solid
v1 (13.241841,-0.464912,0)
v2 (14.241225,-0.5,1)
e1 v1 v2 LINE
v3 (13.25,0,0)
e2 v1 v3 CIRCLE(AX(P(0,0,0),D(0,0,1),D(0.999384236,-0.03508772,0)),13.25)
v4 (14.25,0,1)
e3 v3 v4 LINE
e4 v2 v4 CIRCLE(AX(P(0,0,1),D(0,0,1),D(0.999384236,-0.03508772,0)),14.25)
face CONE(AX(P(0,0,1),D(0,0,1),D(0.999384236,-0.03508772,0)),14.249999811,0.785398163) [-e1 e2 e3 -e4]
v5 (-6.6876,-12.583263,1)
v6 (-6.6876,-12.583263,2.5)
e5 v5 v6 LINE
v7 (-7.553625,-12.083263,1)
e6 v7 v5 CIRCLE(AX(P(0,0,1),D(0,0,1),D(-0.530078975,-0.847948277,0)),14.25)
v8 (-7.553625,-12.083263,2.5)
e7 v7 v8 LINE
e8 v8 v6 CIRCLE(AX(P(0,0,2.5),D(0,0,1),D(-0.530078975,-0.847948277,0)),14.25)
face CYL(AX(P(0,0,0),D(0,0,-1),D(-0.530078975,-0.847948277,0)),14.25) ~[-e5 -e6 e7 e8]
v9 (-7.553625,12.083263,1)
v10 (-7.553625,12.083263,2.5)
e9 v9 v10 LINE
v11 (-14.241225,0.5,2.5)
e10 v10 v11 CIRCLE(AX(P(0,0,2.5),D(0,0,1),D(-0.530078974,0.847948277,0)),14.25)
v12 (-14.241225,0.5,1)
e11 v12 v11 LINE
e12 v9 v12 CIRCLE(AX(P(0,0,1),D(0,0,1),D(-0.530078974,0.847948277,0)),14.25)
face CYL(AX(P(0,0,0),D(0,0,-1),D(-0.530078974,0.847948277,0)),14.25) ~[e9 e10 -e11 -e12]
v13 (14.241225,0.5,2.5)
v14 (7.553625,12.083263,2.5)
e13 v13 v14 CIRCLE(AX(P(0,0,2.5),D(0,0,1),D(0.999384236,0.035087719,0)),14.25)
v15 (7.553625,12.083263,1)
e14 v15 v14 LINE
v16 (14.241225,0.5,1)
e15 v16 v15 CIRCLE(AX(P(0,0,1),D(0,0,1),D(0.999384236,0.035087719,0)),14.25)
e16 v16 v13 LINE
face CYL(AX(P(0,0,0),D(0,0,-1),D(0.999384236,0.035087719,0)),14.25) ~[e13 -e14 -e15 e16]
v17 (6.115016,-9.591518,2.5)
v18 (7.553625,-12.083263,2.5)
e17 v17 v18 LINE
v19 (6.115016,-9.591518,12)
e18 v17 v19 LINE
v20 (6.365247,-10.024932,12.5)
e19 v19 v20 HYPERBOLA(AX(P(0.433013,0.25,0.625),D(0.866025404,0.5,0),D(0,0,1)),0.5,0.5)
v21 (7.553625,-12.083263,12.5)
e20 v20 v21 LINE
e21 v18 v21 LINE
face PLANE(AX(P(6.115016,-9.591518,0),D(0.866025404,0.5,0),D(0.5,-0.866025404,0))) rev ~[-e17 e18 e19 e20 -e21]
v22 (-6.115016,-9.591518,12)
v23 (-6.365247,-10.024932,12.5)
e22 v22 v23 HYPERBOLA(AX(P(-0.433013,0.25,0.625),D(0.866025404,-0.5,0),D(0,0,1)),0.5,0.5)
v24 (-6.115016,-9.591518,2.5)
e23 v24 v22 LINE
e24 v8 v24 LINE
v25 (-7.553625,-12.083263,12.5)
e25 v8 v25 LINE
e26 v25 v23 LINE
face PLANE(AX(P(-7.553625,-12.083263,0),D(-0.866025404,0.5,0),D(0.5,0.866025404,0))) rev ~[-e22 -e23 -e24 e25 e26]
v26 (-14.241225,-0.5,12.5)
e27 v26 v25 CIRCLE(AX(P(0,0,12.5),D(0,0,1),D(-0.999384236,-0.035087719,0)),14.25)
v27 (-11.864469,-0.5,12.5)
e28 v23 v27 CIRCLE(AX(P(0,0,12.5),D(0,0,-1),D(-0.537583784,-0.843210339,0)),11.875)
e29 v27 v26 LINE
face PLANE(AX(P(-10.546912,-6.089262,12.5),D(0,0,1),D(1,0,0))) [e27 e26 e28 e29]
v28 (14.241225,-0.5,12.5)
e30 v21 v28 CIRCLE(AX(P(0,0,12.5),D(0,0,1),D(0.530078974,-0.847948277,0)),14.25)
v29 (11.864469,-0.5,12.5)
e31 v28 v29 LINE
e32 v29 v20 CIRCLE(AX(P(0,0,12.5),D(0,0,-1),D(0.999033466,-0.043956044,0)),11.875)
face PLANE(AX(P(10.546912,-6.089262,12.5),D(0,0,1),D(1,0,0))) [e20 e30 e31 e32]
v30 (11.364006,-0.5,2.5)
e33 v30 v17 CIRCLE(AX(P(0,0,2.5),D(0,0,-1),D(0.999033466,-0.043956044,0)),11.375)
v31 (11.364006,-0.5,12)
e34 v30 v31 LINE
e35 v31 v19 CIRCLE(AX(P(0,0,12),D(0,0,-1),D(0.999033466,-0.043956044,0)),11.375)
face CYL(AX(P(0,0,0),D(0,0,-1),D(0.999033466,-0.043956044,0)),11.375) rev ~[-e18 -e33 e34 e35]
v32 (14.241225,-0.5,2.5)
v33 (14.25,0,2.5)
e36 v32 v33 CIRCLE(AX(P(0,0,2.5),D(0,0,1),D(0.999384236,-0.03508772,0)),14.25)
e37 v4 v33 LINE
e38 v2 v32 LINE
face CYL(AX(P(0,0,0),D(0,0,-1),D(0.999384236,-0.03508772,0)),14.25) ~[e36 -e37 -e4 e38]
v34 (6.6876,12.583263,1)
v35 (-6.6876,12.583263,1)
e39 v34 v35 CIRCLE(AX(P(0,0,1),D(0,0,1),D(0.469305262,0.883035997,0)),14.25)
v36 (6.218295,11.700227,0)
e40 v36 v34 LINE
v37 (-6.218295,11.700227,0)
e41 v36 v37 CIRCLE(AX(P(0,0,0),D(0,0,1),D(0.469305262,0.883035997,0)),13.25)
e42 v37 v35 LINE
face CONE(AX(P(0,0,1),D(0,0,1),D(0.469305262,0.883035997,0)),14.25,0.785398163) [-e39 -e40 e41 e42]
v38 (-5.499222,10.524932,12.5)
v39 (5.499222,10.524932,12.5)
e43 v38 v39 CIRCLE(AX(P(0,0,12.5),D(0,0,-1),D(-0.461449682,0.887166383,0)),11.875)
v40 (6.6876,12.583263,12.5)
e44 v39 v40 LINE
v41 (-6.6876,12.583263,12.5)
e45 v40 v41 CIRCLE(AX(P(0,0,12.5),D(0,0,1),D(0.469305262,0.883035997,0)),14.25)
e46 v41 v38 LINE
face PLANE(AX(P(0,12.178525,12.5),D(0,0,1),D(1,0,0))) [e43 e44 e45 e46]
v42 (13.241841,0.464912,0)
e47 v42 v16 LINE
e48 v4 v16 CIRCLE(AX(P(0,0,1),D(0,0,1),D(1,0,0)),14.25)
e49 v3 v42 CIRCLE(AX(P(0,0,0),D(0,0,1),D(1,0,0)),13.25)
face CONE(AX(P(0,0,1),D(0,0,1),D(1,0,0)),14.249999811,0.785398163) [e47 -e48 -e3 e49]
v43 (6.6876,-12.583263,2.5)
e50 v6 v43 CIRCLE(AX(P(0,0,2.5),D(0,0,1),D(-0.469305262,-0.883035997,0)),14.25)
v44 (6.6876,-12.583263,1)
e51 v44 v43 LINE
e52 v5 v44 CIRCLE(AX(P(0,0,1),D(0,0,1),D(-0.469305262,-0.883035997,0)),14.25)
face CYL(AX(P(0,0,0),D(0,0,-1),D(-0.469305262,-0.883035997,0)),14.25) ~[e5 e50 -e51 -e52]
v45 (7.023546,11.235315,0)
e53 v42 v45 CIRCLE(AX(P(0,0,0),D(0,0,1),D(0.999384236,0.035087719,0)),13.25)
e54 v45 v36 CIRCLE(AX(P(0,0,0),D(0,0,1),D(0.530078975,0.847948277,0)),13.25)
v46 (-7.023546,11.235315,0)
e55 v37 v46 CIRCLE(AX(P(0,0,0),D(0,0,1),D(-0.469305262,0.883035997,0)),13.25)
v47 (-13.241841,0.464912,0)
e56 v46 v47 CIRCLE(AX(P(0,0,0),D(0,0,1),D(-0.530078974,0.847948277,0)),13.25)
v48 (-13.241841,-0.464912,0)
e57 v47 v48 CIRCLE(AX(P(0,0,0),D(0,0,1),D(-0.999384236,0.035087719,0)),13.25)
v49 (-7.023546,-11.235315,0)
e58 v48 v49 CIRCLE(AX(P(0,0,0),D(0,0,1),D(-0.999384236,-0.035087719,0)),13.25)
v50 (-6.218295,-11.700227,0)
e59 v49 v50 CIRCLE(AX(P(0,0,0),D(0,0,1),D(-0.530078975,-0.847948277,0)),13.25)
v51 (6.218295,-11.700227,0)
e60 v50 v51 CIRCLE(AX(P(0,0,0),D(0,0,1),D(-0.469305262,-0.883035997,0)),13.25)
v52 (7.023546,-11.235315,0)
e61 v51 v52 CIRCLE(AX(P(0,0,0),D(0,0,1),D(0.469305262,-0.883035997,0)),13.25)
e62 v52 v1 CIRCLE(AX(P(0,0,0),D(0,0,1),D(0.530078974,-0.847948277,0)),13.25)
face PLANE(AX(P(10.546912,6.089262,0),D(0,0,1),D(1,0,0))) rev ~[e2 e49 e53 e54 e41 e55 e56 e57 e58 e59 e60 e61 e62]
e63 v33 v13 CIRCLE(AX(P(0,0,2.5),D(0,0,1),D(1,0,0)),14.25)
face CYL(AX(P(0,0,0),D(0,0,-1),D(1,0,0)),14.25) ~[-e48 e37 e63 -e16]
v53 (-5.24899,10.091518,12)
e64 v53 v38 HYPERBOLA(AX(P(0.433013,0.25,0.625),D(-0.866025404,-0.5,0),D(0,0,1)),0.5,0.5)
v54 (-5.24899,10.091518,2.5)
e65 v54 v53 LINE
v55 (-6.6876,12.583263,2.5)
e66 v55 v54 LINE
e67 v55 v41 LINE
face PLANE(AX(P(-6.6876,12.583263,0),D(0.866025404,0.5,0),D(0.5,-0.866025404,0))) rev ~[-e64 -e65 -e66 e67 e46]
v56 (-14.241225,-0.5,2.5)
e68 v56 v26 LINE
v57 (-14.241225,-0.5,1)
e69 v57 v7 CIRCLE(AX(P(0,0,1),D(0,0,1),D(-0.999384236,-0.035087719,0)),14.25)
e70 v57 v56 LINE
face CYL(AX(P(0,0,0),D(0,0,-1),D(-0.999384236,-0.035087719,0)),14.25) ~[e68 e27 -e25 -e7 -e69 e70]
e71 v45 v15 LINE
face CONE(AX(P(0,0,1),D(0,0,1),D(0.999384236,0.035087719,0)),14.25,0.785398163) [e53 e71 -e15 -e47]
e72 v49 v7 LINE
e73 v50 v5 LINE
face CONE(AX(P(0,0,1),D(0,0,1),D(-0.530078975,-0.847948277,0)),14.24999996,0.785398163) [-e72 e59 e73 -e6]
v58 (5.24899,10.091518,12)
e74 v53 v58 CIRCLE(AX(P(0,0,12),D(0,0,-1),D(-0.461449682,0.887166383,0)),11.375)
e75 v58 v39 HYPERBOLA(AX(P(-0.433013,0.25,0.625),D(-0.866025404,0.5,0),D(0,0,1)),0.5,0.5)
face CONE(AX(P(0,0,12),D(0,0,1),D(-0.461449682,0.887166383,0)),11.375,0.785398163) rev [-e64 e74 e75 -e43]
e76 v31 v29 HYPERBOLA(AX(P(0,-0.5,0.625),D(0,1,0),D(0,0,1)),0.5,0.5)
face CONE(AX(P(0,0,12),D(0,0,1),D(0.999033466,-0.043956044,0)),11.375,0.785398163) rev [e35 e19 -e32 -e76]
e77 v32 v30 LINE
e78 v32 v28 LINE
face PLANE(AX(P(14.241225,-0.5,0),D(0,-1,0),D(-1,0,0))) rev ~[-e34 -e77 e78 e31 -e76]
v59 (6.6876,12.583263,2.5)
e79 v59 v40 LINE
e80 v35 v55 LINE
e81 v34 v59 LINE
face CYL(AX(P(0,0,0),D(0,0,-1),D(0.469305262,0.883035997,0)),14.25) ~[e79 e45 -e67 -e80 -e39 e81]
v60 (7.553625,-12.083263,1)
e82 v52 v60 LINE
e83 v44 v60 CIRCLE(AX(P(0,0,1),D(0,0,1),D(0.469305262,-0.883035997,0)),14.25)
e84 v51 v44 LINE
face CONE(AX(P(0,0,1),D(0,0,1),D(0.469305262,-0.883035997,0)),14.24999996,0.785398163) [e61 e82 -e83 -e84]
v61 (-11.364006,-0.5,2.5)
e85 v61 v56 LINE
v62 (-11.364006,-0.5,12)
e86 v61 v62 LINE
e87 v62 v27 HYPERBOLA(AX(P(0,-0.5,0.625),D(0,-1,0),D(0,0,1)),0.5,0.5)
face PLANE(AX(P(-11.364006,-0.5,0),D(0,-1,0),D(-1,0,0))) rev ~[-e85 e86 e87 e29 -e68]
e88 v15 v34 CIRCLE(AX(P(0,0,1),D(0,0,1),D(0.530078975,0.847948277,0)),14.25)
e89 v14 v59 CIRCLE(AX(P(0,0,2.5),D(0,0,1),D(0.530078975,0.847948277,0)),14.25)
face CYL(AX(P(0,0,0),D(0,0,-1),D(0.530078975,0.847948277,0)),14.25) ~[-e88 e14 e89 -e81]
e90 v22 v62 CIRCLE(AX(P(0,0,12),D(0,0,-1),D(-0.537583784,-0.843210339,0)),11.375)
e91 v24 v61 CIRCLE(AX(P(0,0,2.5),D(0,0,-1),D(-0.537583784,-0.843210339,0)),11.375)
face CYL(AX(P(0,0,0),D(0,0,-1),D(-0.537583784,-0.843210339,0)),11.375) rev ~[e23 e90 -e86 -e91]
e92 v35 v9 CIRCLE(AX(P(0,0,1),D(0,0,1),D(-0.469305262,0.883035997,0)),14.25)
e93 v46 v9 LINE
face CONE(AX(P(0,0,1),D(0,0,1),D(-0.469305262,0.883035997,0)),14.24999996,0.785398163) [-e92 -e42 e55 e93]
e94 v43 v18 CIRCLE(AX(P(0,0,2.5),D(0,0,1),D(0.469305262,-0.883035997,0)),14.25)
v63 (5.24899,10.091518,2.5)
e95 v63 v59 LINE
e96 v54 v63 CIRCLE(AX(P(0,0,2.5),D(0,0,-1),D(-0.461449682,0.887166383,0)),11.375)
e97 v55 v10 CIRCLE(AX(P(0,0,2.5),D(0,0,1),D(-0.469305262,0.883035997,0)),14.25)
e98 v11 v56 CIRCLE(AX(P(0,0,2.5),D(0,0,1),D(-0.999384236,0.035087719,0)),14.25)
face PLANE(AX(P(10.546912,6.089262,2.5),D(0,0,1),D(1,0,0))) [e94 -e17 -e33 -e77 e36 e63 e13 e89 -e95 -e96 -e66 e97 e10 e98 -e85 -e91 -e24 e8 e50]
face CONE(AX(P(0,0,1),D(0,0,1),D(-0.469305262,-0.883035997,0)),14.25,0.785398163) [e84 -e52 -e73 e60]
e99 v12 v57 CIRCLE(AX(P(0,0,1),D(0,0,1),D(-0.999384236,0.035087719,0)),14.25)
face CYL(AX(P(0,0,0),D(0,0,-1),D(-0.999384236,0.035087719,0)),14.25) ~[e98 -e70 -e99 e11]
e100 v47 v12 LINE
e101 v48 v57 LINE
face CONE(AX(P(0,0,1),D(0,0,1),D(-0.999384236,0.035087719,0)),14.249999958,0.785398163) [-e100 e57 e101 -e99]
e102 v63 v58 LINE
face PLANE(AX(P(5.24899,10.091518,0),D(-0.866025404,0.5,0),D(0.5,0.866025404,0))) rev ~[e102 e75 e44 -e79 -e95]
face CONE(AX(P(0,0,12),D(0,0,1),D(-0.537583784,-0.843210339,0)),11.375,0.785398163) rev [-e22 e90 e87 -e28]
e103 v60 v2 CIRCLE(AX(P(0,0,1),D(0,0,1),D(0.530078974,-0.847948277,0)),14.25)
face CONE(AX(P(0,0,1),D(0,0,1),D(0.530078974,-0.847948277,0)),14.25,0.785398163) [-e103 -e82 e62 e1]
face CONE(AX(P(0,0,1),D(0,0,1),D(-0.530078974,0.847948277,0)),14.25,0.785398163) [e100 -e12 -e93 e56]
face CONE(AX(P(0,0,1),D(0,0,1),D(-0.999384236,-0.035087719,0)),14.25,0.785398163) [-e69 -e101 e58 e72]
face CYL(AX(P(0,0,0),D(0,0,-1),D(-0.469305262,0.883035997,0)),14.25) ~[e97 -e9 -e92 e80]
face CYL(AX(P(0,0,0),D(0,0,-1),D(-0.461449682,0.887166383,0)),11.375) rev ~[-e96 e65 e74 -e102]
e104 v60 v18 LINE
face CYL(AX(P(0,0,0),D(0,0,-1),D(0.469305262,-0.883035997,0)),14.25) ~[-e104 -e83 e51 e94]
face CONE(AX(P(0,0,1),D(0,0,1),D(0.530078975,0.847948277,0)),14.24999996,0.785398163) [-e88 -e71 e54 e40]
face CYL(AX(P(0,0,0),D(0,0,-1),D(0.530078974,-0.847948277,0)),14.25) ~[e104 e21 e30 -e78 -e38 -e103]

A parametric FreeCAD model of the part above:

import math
import FreeCAD as App
import Part
import Sketcher
from FreeCAD import Vector
Q = App.Units.Quantity


def edges_at(feature, points):
    """Names of the edges that pass closest to the given points."""
    edges = feature.Shape.Edges
    near = lambda p: min(range(len(edges)), key=lambda i: edges[i].distToShape(Part.Vertex(*p))[0])
    return sorted({f"Edge{near(p) + 1}" for p in points})

doc = App.newDocument("Part")
body = doc.addObject("PartDesign::Body", "Body")

sketch1 = body.newObject("Sketcher::SketchObject", "Sketch")
sketch1.AttachmentSupport = (doc.getObject("XY_Plane"), [""])
sketch1.MapMode = "FlatFace"
sketch1.addGeometry([
    Part.LineSegment(Vector(5.2, 10.1, 0), Vector(6.7, 12.6, 0)),
    Part.ArcOfCircle(Part.Circle(Vector(0, 0, 0), Vector(0, 0, 1), 14.2), math.radians(62), math.radians(118)),
    Part.LineSegment(Vector(-6.7, 12.6, 0), Vector(-5.2, 10.1, 0)),
    Part.ArcOfCircle(Part.Circle(Vector(0, 0, 0), Vector(0, 0, 1), 11.4), math.radians(63), math.radians(117)),
], False)
sketch1.addConstraint([
    Sketcher.Constraint("Coincident", 0, 2, 1, 1),
    Sketcher.Constraint("Coincident", 1, 2, 2, 1),
    Sketcher.Constraint("Coincident", 2, 2, 3, 2),
    Sketcher.Constraint("Coincident", 3, 1, 0, 1),
    Sketcher.Constraint("Coincident", 1, 3, -1, 1),
    Sketcher.Constraint("Coincident", 3, 3, -1, 1),
    Sketcher.Constraint("Horizontal", 0, 2, 1, 2),
    Sketcher.Constraint("Horizontal", 2, 2, 3, 1),
    Sketcher.Constraint("Angle", 0, Q("60 deg")),
    Sketcher.Constraint("Radius", 1, 14.25),
    Sketcher.Constraint("Radius", 3, 11.375),
    Sketcher.Constraint("DistanceX", -1, 1, 0, 2, 6.6876),
])
pad1 = body.newObject("PartDesign::Pad", "Pad")
pad1.Profile = sketch1
pad1.Length = 12.5
body2 = doc.addObject("PartDesign::Body", "Body001")

sketch2 = body2.newObject("Sketcher::SketchObject", "Sketch001")
sketch2.AttachmentSupport = (doc.getObject("XY_Plane001"), [""])
sketch2.MapMode = "FlatFace"
sketch2.addGeometry([
    Part.LineSegment(Vector(11.4, 0.5, 0), Vector(14.2, 0.5, 0)),
    Part.ArcOfCircle(Part.Circle(Vector(0, 0, 0), Vector(0, 0, 1), 14.2), math.radians(2), math.radians(58)),
    Part.LineSegment(Vector(7.6, 12.1, 0), Vector(6.1, 9.6, 0)),
    Part.ArcOfCircle(Part.Circle(Vector(0, 0, 0), Vector(0, 0, 1), 11.4), math.radians(3), math.radians(57)),
], False)
sketch2.addConstraint([
    Sketcher.Constraint("Coincident", 0, 2, 1, 1),
    Sketcher.Constraint("Coincident", 1, 2, 2, 1),
    Sketcher.Constraint("Coincident", 2, 2, 3, 2),
    Sketcher.Constraint("Coincident", 3, 1, 0, 1),
    Sketcher.Constraint("Horizontal", 0),
    Sketcher.Constraint("Coincident", 1, 3, -1, 1),
    Sketcher.Constraint("Coincident", 3, 3, -1, 1),
    Sketcher.Constraint("Angle", 2, Q("-120 deg")),
    Sketcher.Constraint("Radius", 1, 14.25),
    Sketcher.Constraint("Radius", 3, 11.375),
    Sketcher.Constraint("DistanceY", -1, 1, 0, 2, 0.5),
    Sketcher.Constraint("DistanceX", 1, 2, 0, 2, 6.6876),
])
pad2 = body2.newObject("PartDesign::Pad", "Pad001")
pad2.Profile = sketch2
pad2.Length = 12.5
body3 = doc.addObject("PartDesign::Body", "Body002")

sketch3 = body3.newObject("Sketcher::SketchObject", "Sketch002")
sketch3.AttachmentSupport = (doc.getObject("XY_Plane002"), [""])
sketch3.MapMode = "FlatFace"
sketch3.addGeometry([
    Part.ArcOfCircle(Part.Circle(Vector(0, 0, 0), Vector(0, 0, 1), 14.2), math.radians(-58), math.radians(-2)),
    Part.LineSegment(Vector(14.2, -0.5, 0), Vector(11.4, -0.5, 0)),
    Part.ArcOfCircle(Part.Circle(Vector(0, 0, 0), Vector(0, 0, 1), 11.4), math.radians(-57), math.radians(-3)),
    Part.LineSegment(Vector(6.1, -9.6, 0), Vector(7.6, -12.1, 0)),
], False)
sketch3.addConstraint([
    Sketcher.Constraint("Coincident", 0, 2, 1, 1),
    Sketcher.Constraint("Coincident", 1, 2, 2, 2),
    Sketcher.Constraint("Coincident", 2, 1, 3, 1),
    Sketcher.Constraint("Coincident", 3, 2, 0, 1),
    Sketcher.Constraint("Horizontal", 1),
    Sketcher.Constraint("Coincident", 0, 3, -1, 1),
    Sketcher.Constraint("Coincident", 2, 3, -1, 1),
    Sketcher.Constraint("Angle", 3, Q("-60 deg")),
    Sketcher.Constraint("Radius", 0, 14.25),
    Sketcher.Constraint("Radius", 2, 11.375),
    Sketcher.Constraint("DistanceY", 0, 2, -1, 1, 0.5),
    Sketcher.Constraint("DistanceX", 3, 2, 0, 2, 6.6876),
])
pad3 = body3.newObject("PartDesign::Pad", "Pad002")
pad3.Profile = sketch3
pad3.Length = 12.5
body4 = doc.addObject("PartDesign::Body", "Body003")

sketch4 = body4.newObject("Sketcher::SketchObject", "Sketch003")
sketch4.AttachmentSupport = (doc.getObject("XY_Plane003"), [""])
sketch4.MapMode = "FlatFace"
sketch4.addGeometry([
    Part.ArcOfCircle(Part.Circle(Vector(0, 0, 0), Vector(0, 0, 1), 14.2), math.radians(-178), math.radians(-122)),
    Part.LineSegment(Vector(-7.6, -12.1, 0), Vector(-6.1, -9.6, 0)),
    Part.ArcOfCircle(Part.Circle(Vector(0, 0, 0), Vector(0, 0, 1), 11.4), math.radians(-177), math.radians(-123)),
    Part.LineSegment(Vector(-11.4, -0.5, 0), Vector(-14.2, -0.5, 0)),
], False)
sketch4.addConstraint([
    Sketcher.Constraint("Coincident", 0, 2, 1, 1),
    Sketcher.Constraint("Coincident", 1, 2, 2, 2),
    Sketcher.Constraint("Coincident", 2, 1, 3, 1),
    Sketcher.Constraint("Coincident", 3, 2, 0, 1),
    Sketcher.Constraint("Horizontal", 3),
    Sketcher.Constraint("Coincident", 0, 3, -1, 1),
    Sketcher.Constraint("Coincident", 2, 3, -1, 1),
    Sketcher.Constraint("Angle", 1, Q("60 deg")),
    Sketcher.Constraint("Radius", 0, 14.25),
    Sketcher.Constraint("Radius", 2, 11.375),
    Sketcher.Constraint("DistanceY", 2, 1, -1, 1, 0.5),
    Sketcher.Constraint("DistanceX", 3, 2, 0, 2, 6.6876),
])
pad4 = body4.newObject("PartDesign::Pad", "Pad003")
pad4.Profile = sketch4
pad4.Length = 12.5
body5 = doc.addObject("PartDesign::Body", "Body004")

sketch5 = body5.newObject("Sketcher::SketchObject", "Sketch004")
sketch5.AttachmentSupport = (doc.getObject("XY_Plane004"), [""])
sketch5.MapMode = "FlatFace"
sketch5.addGeometry([
    Part.LineSegment(Vector(-6.1, 9.6, 0), Vector(-7.6, 12.1, 0)),
    Part.ArcOfCircle(Part.Circle(Vector(0, 0, 0), Vector(0, 0, 1), 14.2), math.radians(122), math.radians(178)),
    Part.LineSegment(Vector(-14.2, 0.5, 0), Vector(-11.4, 0.5, 0)),
    Part.ArcOfCircle(Part.Circle(Vector(0, 0, 0), Vector(0, 0, 1), 11.4), math.radians(123), math.radians(177)),
], False)
sketch5.addConstraint([
    Sketcher.Constraint("Coincident", 0, 2, 1, 1),
    Sketcher.Constraint("Coincident", 1, 2, 2, 1),
    Sketcher.Constraint("Coincident", 2, 2, 3, 2),
    Sketcher.Constraint("Coincident", 3, 1, 0, 1),
    Sketcher.Constraint("Horizontal", 2),
    Sketcher.Constraint("Coincident", 1, 3, -1, 1),
    Sketcher.Constraint("Coincident", 3, 3, -1, 1),
    Sketcher.Constraint("Angle", 0, Q("120 deg")),
    Sketcher.Constraint("Radius", 1, 14.25),
    Sketcher.Constraint("Radius", 3, 11.375),
    Sketcher.Constraint("DistanceY", -1, 1, 1, 2, 0.5),
    Sketcher.Constraint("DistanceX", 1, 2, 0, 2, 6.6876),
])
pad5 = body5.newObject("PartDesign::Pad", "Pad004")
pad5.Profile = sketch5
pad5.Length = 12.5
body.AllowCompound = True
doc.recompute()

boolean = body.newObject("PartDesign::Boolean", "Boolean")
boolean.Type = "Fuse"
boolean.addObjects([body2])
doc.recompute()

boolean2 = body.newObject("PartDesign::Boolean", "Boolean001")
boolean2.Type = "Fuse"
boolean2.addObjects([body3])
doc.recompute()

boolean3 = body.newObject("PartDesign::Boolean", "Boolean002")
boolean3.Type = "Fuse"
boolean3.addObjects([body4])
doc.recompute()

boolean4 = body.newObject("PartDesign::Boolean", "Boolean003")
boolean4.Type = "Fuse"
boolean4.addObjects([body5])

sketch6 = body.newObject("Sketcher::SketchObject", "Sketch005")
sketch6.AttachmentSupport = (doc.getObject("XY_Plane"), [""])
sketch6.MapMode = "FlatFace"
sketch6.addGeometry([
    Part.ArcOfCircle(Part.Circle(Vector(0, 0, 0), Vector(0, 0, 1), 14.2), math.radians(2), math.radians(58)),
    Part.ArcOfCircle(Part.Circle(Vector(0, 0, 0), Vector(0, 0, 1), 14.2), math.radians(57.99), math.radians(62.01)),
    Part.ArcOfCircle(Part.Circle(Vector(0, 0, 0), Vector(0, 0, 1), 14.2), math.radians(62), math.radians(118)),
    Part.ArcOfCircle(Part.Circle(Vector(0, 0, 0), Vector(0, 0, 1), 14.2), math.radians(117.99), math.radians(122.01)),
    Part.ArcOfCircle(Part.Circle(Vector(0, 0, 0), Vector(0, 0, 1), 14.2), math.radians(122), math.radians(178)),
    Part.ArcOfCircle(Part.Circle(Vector(0, 0, 0), Vector(0, 0, 1), 14.2), math.radians(177.99), math.radians(182.01)),
    Part.ArcOfCircle(Part.Circle(Vector(0, 0, 0), Vector(0, 0, 1), 14.2), math.radians(-178), math.radians(-122)),
    Part.ArcOfCircle(Part.Circle(Vector(0, 0, 0), Vector(0, 0, 1), 14.2), math.radians(-122.01), math.radians(-117.99)),
    Part.ArcOfCircle(Part.Circle(Vector(0, 0, 0), Vector(0, 0, 1), 14.2), math.radians(-118), math.radians(-62)),
    Part.ArcOfCircle(Part.Circle(Vector(0, 0, 0), Vector(0, 0, 1), 14.2), math.radians(-62.01), math.radians(-57.99)),
    Part.ArcOfCircle(Part.Circle(Vector(0, 0, 0), Vector(0, 0, 1), 14.2), math.radians(-58), math.radians(-2)),
    Part.ArcOfCircle(Part.Circle(Vector(0, 0, 0), Vector(0, 0, 1), 14.2), math.radians(-2.01), math.radians(0)),
    Part.ArcOfCircle(Part.Circle(Vector(0, 0, 0), Vector(0, 0, 1), 14.2), math.radians(0), math.radians(2.01)),
], False)
sketch6.addConstraint([
    Sketcher.Constraint("Tangent", 0, 2, 1, 1),
    Sketcher.Constraint("Tangent", 1, 2, 2, 1),
    Sketcher.Constraint("Tangent", 2, 2, 3, 1),
    Sketcher.Constraint("Tangent", 3, 2, 4, 1),
    Sketcher.Constraint("Tangent", 4, 2, 5, 1),
    Sketcher.Constraint("Tangent", 5, 2, 6, 1),
    Sketcher.Constraint("Tangent", 6, 2, 7, 1),
    Sketcher.Constraint("Tangent", 7, 2, 8, 1),
    Sketcher.Constraint("Tangent", 8, 2, 9, 1),
    Sketcher.Constraint("Tangent", 9, 2, 10, 1),
    Sketcher.Constraint("Tangent", 10, 2, 11, 1),
    Sketcher.Constraint("Tangent", 11, 2, 12, 1),
    Sketcher.Constraint("Tangent", 12, 2, 0, 1),
    Sketcher.Constraint("Coincident", 0, 3, -1, 1),
    Sketcher.Constraint("Coincident", 2, 3, -1, 1),
    Sketcher.Constraint("Coincident", 4, 3, -1, 1),
    Sketcher.Constraint("Coincident", 6, 3, -1, 1),
    Sketcher.Constraint("Coincident", 8, 3, -1, 1),
    Sketcher.Constraint("Coincident", 11, 3, -1, 1),
    Sketcher.Constraint("PointOnObject", 11, 2, -1),
    Sketcher.Constraint("Horizontal", 1, 2, 2, 2),
    Sketcher.Constraint("Horizontal", 0, 2, 3, 2),
    Sketcher.Constraint("Horizontal", 7, 2, 8, 2),
    Sketcher.Constraint("Horizontal", 6, 2, 9, 2),
    Sketcher.Constraint("Horizontal", 5, 2, 10, 2),
    Sketcher.Constraint("Horizontal", 4, 2, 12, 2),
    Sketcher.Constraint("Vertical", 4, 2, 5, 2),
    Sketcher.Constraint("Vertical", 3, 2, 6, 2),
    Sketcher.Constraint("Vertical", 2, 2, 7, 2),
    Sketcher.Constraint("Radius", 0, 14.25),
    Sketcher.Constraint("DistanceY", 5, 2, 4, 2, 1.0),
    Sketcher.Constraint("DistanceY", 0, 2, 1, 2, 0.5),
    Sketcher.Constraint("DistanceX", -1, 1, 1, 2, 6.6876),
])
pad6 = body.newObject("PartDesign::Pad", "Pad005")
pad6.Profile = sketch6
pad6.Length = 2.5
doc.recompute()

chamfer = body.newObject("PartDesign::Chamfer", "Chamfer")
chamfer.Base = (pad6, edges_at(pad6, [
    (0, 11.375, 12.5),
    (9.851, 5.688, 12.5),
    (9.851, -5.688, 12.5),
    (-9.851, -5.688, 12.5),
    (-9.851, 5.688, 12.5),
]))
chamfer.Size = 0.5

sketch7 = body.newObject("Sketcher::SketchObject", "Sketch006")
sketch7.AttachmentSupport = (doc.getObject("XY_Plane"), [""])
sketch7.MapMode = "FlatFace"
sketch7.AttachmentOffset = App.Placement(Vector(0, 0, 2.5), App.Rotation())
sketch7.addGeometry([
    Part.ArcOfCircle(Part.Circle(Vector(0, 0, 0), Vector(0, 0, 1), 14.2), math.radians(177.99), math.radians(182.01)),
    Part.LineSegment(Vector(-14.2, 0.5, 0), Vector(-17.5, 0.5, 0)),
    Part.LineSegment(Vector(-17.5, 0.5, 0), Vector(-17.5, -0.5, 0)),
    Part.LineSegment(Vector(-17.5, -0.5, 0), Vector(-14.2, -0.5, 0)),
    Part.ArcOfCircle(Part.Circle(Vector(0, 0, 0), Vector(0, 0, 1), 14.2), math.radians(2), math.radians(58)),
    Part.LineSegment(Vector(7.6, 12.1, 0), Vector(6.1, 9.6, 0)),
    Part.LineSegment(Vector(6.1, 9.6, 0), Vector(0.9, 0.5, 0)),
    Part.LineSegment(Vector(0.9, 0.5, 0), Vector(14.2, 0.5, 0)),
    Part.LineSegment(Vector(-6.1, 9.6, 0), Vector(-7.6, 12.1, 0)),
    Part.ArcOfCircle(Part.Circle(Vector(0, 0, 0), Vector(0, 0, 1), 14.2), math.radians(122), math.radians(178)),
    Part.LineSegment(Vector(-14.2, 0.5, 0), Vector(-11.4, 0.5, 0)),
    Part.ArcOfCircle(Part.Circle(Vector(0, 0, 0), Vector(0, 0, 1), 11.4), math.radians(123), math.radians(177)),
    Part.ArcOfCircle(Part.Circle(Vector(0, 0, 0), Vector(0, 0, 1), 14.2), math.radians(0), math.radians(2.01)),
    Part.ArcOfCircle(Part.Circle(Vector(0, 0, 0), Vector(0, 0, 1), 14.2), math.radians(-2.01), math.radians(0)),
    Part.LineSegment(Vector(14.2, -0.5, 0), Vector(17.5, -0.5, 0)),
    Part.LineSegment(Vector(17.5, -0.5, 0), Vector(17.5, 0.5, 0)),
    Part.LineSegment(Vector(17.5, 0.5, 0), Vector(14.2, 0.5, 0)),
], False)
sketch7.addConstraint([
    Sketcher.Constraint("Coincident", 0, 1, 1, 1),
    Sketcher.Constraint("Coincident", 1, 2, 2, 1),
    Sketcher.Constraint("Coincident", 2, 2, 3, 1),
    Sketcher.Constraint("Coincident", 3, 2, 0, 2),
    Sketcher.Constraint("Coincident", 4, 2, 5, 1),
    Sketcher.Constraint("Coincident", 5, 2, 6, 1),
    Sketcher.Constraint("Coincident", 6, 2, 7, 1),
    Sketcher.Constraint("Coincident", 7, 2, 4, 1),
    Sketcher.Constraint("Coincident", 8, 2, 9, 1),
    Sketcher.Constraint("Coincident", 9, 2, 10, 1),
    Sketcher.Constraint("Coincident", 10, 2, 11, 2),
    Sketcher.Constraint("Coincident", 11, 1, 8, 1),
    Sketcher.Constraint("Tangent", 12, 1, 13, 2),
    Sketcher.Constraint("Coincident", 13, 1, 14, 1),
    Sketcher.Constraint("Coincident", 14, 2, 15, 1),
    Sketcher.Constraint("Coincident", 15, 2, 16, 1),
    Sketcher.Constraint("Coincident", 16, 2, 12, 2),
    Sketcher.Constraint("Horizontal", 1),
    Sketcher.Constraint("Vertical", 2),
    Sketcher.Constraint("Horizontal", 3),
    Sketcher.Constraint("Horizontal", 7),
    Sketcher.Constraint("Horizontal", 10),
    Sketcher.Constraint("Horizontal", 14),
    Sketcher.Constraint("Vertical", 15),
    Sketcher.Constraint("Horizontal", 16),
    Sketcher.Constraint("Coincident", 0, 3, -1, 1),
    Sketcher.Constraint("Coincident", 4, 3, -1, 1),
    Sketcher.Constraint("Coincident", 9, 3, -1, 1),
    Sketcher.Constraint("Coincident", 11, 3, -1, 1),
    Sketcher.Constraint("Coincident", 12, 3, -1, 1),
    Sketcher.Constraint("Coincident", 9, 2, 0, 1),
    Sketcher.Constraint("Coincident", 16, 2, 7, 2),
    Sketcher.Constraint("Equal", 0, 4),
    Sketcher.Constraint("Equal", 12, 13),
    Sketcher.Constraint("Symmetric", 1, 2, 14, 2, -1, 1),
    Sketcher.Constraint("Symmetric", 5, 2, 11, 1, -2),
    Sketcher.Constraint("PointOnObject", 12, 1, -1),
    Sketcher.Constraint("Parallel", 5, 6),
    Sketcher.Constraint("Horizontal", 1, 2, 6, 2),
    Sketcher.Constraint("Horizontal", 4, 2, 8, 2),
    Sketcher.Constraint("Horizontal", 3, 2, 13, 1),
    Sketcher.Constraint("DistanceY", 2, 2, 2, 1, 1.0),
    Sketcher.Constraint("Angle", 5, Q("-120 deg")),
    Sketcher.Constraint("Radius", 0, 14.25),
    Sketcher.Constraint("Radius", 11, 11.375),
    Sketcher.Constraint("DistanceX", 1, 2, -1, 1, 17.5),
    Sketcher.Constraint("DistanceX", 7, 1, 7, 2, 13.3752),
])
pocket1 = body.newObject("PartDesign::Pocket", "Pocket")
pocket1.Profile = sketch7
pocket1.Length = 22.5
pocket1.Reversed = True
doc.recompute()

chamfer2 = body.newObject("PartDesign::Chamfer", "Chamfer001")
chamfer2.Base = (pocket1, edges_at(pocket1, [
    (12.341, 7.125, 0),
    (-12.341, 7.125, 0),
    (-12.341, -7.125, 0),
    (-14.25, 0, 0),
    (0, -14.25, 0),
]))
chamfer2.Size = 1

doc.recompute()
